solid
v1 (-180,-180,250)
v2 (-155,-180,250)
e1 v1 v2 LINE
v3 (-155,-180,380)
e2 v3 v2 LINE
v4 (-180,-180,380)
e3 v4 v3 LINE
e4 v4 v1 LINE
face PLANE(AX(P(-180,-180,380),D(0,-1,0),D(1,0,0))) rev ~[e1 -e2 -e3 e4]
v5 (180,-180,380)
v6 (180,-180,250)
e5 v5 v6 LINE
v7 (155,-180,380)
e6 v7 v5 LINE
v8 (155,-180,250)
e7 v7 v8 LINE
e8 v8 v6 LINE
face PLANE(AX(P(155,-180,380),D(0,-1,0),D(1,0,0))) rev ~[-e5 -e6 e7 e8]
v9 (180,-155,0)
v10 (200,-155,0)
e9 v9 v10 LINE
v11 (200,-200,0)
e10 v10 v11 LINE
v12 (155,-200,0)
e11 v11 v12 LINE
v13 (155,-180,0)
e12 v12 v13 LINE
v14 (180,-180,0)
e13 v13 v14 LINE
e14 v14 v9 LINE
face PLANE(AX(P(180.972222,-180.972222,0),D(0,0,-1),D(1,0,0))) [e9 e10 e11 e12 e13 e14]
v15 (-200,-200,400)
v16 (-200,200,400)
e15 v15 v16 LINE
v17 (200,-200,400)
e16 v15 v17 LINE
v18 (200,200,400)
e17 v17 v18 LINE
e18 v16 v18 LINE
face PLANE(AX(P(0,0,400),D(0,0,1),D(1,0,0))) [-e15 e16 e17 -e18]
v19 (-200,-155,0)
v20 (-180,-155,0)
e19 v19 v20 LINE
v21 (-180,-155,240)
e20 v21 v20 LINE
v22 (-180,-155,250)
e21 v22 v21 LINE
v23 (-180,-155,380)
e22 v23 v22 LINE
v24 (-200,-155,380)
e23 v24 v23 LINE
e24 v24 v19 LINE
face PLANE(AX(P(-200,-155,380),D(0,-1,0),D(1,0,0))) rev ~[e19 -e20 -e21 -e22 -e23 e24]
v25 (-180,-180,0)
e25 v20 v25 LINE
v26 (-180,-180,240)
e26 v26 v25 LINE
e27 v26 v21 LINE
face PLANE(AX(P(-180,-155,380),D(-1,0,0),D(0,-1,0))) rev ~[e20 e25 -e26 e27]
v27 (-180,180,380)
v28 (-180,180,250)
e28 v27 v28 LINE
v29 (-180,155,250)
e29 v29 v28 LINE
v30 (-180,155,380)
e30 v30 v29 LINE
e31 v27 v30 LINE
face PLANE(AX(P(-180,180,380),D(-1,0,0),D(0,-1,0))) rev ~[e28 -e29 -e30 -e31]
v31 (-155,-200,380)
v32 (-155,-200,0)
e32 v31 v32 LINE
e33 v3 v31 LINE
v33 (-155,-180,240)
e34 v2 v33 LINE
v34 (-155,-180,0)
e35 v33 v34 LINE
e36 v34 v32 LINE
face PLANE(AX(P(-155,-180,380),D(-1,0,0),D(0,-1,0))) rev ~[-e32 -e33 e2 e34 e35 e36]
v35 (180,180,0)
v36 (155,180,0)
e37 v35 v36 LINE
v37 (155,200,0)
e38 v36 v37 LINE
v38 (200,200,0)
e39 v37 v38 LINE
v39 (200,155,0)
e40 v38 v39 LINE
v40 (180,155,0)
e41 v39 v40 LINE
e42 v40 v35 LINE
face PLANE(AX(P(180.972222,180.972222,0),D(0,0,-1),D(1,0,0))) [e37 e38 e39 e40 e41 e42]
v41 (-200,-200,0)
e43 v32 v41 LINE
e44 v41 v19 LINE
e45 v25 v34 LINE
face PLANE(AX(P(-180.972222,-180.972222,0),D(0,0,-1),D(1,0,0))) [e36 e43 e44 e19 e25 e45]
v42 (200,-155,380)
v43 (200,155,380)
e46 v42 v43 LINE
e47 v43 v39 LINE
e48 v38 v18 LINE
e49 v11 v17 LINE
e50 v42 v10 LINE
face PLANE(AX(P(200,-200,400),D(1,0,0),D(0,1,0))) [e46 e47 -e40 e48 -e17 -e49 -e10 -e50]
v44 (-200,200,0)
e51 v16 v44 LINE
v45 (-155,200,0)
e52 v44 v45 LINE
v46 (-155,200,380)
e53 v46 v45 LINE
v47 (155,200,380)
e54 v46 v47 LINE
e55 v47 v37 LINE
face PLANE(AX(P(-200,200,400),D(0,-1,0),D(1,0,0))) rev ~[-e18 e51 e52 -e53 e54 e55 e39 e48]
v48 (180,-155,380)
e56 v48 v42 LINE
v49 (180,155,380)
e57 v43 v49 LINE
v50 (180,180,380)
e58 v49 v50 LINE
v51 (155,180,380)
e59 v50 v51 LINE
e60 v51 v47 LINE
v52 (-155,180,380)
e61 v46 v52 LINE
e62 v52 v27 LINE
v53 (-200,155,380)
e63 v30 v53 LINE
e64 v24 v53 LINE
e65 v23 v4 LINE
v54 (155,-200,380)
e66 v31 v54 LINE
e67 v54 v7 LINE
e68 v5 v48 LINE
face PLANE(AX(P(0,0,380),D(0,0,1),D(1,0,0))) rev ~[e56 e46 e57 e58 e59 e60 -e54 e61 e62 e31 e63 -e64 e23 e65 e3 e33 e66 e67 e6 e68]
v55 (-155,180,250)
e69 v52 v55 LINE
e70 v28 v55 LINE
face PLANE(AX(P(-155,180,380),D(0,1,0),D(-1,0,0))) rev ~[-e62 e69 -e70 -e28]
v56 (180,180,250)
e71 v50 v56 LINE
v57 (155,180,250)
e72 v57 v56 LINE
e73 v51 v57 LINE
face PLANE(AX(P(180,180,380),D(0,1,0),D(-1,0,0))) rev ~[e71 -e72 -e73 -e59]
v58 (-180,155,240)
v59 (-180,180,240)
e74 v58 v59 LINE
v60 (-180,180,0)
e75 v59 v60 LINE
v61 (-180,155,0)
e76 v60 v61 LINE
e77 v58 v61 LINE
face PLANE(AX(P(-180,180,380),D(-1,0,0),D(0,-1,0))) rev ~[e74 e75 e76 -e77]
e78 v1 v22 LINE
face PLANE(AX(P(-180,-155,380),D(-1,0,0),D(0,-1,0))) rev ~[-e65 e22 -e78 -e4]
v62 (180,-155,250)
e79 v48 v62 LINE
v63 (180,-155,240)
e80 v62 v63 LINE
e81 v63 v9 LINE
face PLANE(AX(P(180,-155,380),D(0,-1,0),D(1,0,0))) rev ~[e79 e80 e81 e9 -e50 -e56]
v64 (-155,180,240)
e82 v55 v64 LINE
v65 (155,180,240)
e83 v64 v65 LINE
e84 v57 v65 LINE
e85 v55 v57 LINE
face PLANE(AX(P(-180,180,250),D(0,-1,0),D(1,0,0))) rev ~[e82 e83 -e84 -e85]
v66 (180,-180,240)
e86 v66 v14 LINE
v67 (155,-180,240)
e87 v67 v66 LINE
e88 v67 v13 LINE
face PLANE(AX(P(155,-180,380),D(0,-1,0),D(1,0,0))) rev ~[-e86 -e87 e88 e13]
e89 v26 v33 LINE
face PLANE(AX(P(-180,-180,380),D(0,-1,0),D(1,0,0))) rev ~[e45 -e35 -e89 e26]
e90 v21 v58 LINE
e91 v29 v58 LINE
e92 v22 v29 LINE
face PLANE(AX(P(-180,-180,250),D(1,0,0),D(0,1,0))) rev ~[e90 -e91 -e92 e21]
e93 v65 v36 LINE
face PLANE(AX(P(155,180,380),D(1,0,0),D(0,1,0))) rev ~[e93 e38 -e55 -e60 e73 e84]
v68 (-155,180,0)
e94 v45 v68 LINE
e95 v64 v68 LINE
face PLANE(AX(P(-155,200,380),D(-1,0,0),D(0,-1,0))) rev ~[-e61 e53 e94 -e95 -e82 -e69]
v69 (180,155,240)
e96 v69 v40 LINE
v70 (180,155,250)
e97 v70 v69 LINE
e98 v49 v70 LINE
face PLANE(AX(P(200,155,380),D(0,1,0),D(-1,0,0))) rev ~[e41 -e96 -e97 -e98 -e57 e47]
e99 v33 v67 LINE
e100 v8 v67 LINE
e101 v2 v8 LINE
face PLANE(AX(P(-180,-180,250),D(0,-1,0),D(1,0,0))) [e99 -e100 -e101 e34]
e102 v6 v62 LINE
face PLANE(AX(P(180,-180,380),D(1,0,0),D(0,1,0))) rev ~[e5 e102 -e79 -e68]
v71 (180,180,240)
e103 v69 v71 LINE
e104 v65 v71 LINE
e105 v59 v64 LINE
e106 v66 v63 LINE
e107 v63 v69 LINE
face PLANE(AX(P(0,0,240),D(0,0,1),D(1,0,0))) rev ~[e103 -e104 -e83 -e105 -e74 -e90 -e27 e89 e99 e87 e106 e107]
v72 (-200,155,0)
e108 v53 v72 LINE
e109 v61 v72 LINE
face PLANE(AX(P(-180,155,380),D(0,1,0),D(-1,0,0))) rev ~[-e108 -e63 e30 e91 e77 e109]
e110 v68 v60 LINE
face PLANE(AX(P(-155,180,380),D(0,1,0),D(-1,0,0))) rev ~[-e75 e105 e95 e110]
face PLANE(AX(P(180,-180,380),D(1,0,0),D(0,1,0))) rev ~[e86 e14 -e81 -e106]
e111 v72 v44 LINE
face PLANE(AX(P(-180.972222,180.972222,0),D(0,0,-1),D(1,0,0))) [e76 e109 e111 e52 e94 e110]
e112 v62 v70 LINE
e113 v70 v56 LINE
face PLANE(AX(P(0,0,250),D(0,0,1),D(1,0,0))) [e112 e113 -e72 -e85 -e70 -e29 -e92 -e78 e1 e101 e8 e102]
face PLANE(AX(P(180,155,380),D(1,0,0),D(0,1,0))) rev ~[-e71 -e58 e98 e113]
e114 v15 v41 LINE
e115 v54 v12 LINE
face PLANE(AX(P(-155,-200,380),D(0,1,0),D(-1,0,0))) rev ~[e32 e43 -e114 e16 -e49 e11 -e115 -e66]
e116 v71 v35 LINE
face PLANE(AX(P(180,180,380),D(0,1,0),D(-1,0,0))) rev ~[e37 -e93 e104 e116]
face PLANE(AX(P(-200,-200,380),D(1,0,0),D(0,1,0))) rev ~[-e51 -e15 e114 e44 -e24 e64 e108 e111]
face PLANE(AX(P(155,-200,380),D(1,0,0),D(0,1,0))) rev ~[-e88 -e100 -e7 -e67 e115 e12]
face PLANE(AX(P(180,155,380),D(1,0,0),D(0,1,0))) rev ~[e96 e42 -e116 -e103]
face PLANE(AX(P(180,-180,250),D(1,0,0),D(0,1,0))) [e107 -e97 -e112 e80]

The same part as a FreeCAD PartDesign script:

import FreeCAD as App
import Part
import Sketcher

V = App.Vector


def add_polygon(sketch, points):
    """Adds a closed chain of lines whose ends are joined by coincident constraints."""
    first, n = sketch.GeometryCount, len(points)
    for a, b in zip(points, points[1:] + points[:1]):
        sketch.addGeometry(Part.LineSegment(App.Vector(*a, 0), App.Vector(*b, 0)), False)
    for i in range(n):
        sketch.addConstraint(Sketcher.Constraint("Coincident", first + i, 2, first + (i + 1) % n, 1))

doc = App.newDocument("Part")
body = doc.addObject("PartDesign::Body", "Body")

sketch1 = doc.addObject("Sketcher::SketchObject", "Sketch")
body.addObject(sketch1)
sketch1.AttachmentSupport = (doc.XY_Plane, [""])
sketch1.MapMode = "FlatFace"
sketch1.AttachmentOffset = App.Placement(V(0, 0, 400), App.Rotation())
add_polygon(sketch1, [(-200, 200), (-200, -200), (200, -200), (200, 200)])
sketch1.addConstraint(Sketcher.Constraint("Vertical", 0))
sketch1.addConstraint(Sketcher.Constraint("Horizontal", 1))
sketch1.addConstraint(Sketcher.Constraint("Vertical", 2))
sketch1.addConstraint(Sketcher.Constraint("Horizontal", 3))
sketch1.addConstraint(Sketcher.Constraint("Symmetric", 0, 2, 2, 2, -1, 1))
sketch1.addConstraint(Sketcher.Constraint("Equal", 3, 0))
sketch1.addConstraint(Sketcher.Constraint("DistanceX", 1, 1, 1, 2, 400.0))
pad1 = doc.addObject("PartDesign::Pad", "Pad")
body.addObject(pad1)
pad1.Profile = sketch1
pad1.Length = 20
pad1.Reversed = True

sketch2 = doc.addObject("Sketcher::SketchObject", "Sketch001")
body.addObject(sketch2)
sketch2.AttachmentSupport = (doc.XY_Plane, [""])
sketch2.MapMode = "FlatFace"
sketch2.AttachmentOffset = App.Placement(V(0, 0, 380), App.Rotation())
add_polygon(sketch2, [(-155, -200), (-200, -200), (-200, -155), (-180, -155), (-180, -180), (-155, -180)])
add_polygon(sketch2, [(155, -180), (180, -180), (180, -155), (200, -155), (200, -200), (155, -200)])
add_polygon(sketch2, [(200, 200), (200, 155), (180, 155), (180, 180), (155, 180), (155, 200)])
add_polygon(sketch2, [(-180, 180), (-180, 155), (-200, 155), (-200, 200), (-155, 200), (-155, 180)])
sketch2.addConstraint(Sketcher.Constraint("Horizontal", 0))
sketch2.addConstraint(Sketcher.Constraint("Vertical", 1))
sketch2.addConstraint(Sketcher.Constraint("Horizontal", 2))
sketch2.addConstraint(Sketcher.Constraint("Vertical", 3))
sketch2.addConstraint(Sketcher.Constraint("Horizontal", 4))
sketch2.addConstraint(Sketcher.Constraint("Vertical", 5))
sketch2.addConstraint(Sketcher.Constraint("Horizontal", 6))
sketch2.addConstraint(Sketcher.Constraint("Vertical", 7))
sketch2.addConstraint(Sketcher.Constraint("Horizontal", 8))
sketch2.addConstraint(Sketcher.Constraint("Vertical", 9))
sketch2.addConstraint(Sketcher.Constraint("Horizontal", 10))
sketch2.addConstraint(Sketcher.Constraint("Vertical", 11))
sketch2.addConstraint(Sketcher.Constraint("Vertical", 12))
sketch2.addConstraint(Sketcher.Constraint("Horizontal", 13))
sketch2.addConstraint(Sketcher.Constraint("Vertical", 14))
sketch2.addConstraint(Sketcher.Constraint("Horizontal", 15))
sketch2.addConstraint(Sketcher.Constraint("Vertical", 16))
sketch2.addConstraint(Sketcher.Constraint("Horizontal", 17))
sketch2.addConstraint(Sketcher.Constraint("Vertical", 18))
sketch2.addConstraint(Sketcher.Constraint("Horizontal", 19))
sketch2.addConstraint(Sketcher.Constraint("Vertical", 20))
sketch2.addConstraint(Sketcher.Constraint("Horizontal", 21))
sketch2.addConstraint(Sketcher.Constraint("Vertical", 22))
sketch2.addConstraint(Sketcher.Constraint("Horizontal", 23))
sketch2.addConstraint(Sketcher.Constraint("Symmetric", 1, 2, 12, 2, -1, 1))
sketch2.addConstraint(Sketcher.Constraint("Symmetric", 3, 2, 14, 2, -1, 1))
sketch2.addConstraint(Sketcher.Constraint("Symmetric", 5, 2, 16, 2, -1, 1))
sketch2.addConstraint(Sketcher.Constraint("Symmetric", 7, 2, 18, 2, -1, 1))
sketch2.addConstraint(Sketcher.Constraint("Symmetric", 9, 2, 20, 2, -1, 1))
sketch2.addConstraint(Sketcher.Constraint("Symmetric", 11, 2, 22, 2, -1, 1))
sketch2.addConstraint(Sketcher.Constraint("Symmetric", 3, 2, 6, 2, -2))
sketch2.addConstraint(Sketcher.Constraint("Symmetric", 1, 2, 8, 2, -2))
sketch2.addConstraint(Sketcher.Constraint("Symmetric", 5, 2, 10, 2, -2))
sketch2.addConstraint(Sketcher.Constraint("Equal", 21, 1))
sketch2.addConstraint(Sketcher.Constraint("Equal", 23, 3))
sketch2.addConstraint(Sketcher.Constraint("DistanceX", 0, 2, 0, 1, 45.0))
sketch2.addConstraint(Sketcher.Constraint("DistanceX", 2, 1, 2, 2, 20.0))
sketch2.addConstraint(Sketcher.Constraint("DistanceX", 0, 2, -1, 1, 200.0))
sketch2.addConstraint(Sketcher.Constraint("DistanceY", 0, 2, -1, 1, 200.0))
pad2 = doc.addObject("PartDesign::Pad", "Pad001")
body.addObject(pad2)
pad2.Profile = sketch2
pad2.Length = 380
pad2.Reversed = True

sketch3 = doc.addObject("Sketcher::SketchObject", "Sketch002")
body.addObject(sketch3)
sketch3.AttachmentSupport = (doc.XY_Plane, [""])
sketch3.MapMode = "FlatFace"
sketch3.AttachmentOffset = App.Placement(V(0, 0, 250), App.Rotation())
add_polygon(sketch3, [(-180, 180), (-180, -180), (180, -180), (180, 180)])
sketch3.addConstraint(Sketcher.Constraint("Vertical", 0))
sketch3.addConstraint(Sketcher.Constraint("Horizontal", 1))
sketch3.addConstraint(Sketcher.Constraint("Vertical", 2))
sketch3.addConstraint(Sketcher.Constraint("Horizontal", 3))
sketch3.addConstraint(Sketcher.Constraint("Symmetric", 0, 2, 2, 2, -1, 1))
sketch3.addConstraint(Sketcher.Constraint("Equal", 3, 0))
sketch3.addConstraint(Sketcher.Constraint("DistanceX", 1, 1, 1, 2, 360.0))
pad3 = doc.addObject("PartDesign::Pad", "Pad002")
body.addObject(pad3)
pad3.Profile = sketch3
pad3.Length = 10
pad3.Reversed = True

doc.recompute()
